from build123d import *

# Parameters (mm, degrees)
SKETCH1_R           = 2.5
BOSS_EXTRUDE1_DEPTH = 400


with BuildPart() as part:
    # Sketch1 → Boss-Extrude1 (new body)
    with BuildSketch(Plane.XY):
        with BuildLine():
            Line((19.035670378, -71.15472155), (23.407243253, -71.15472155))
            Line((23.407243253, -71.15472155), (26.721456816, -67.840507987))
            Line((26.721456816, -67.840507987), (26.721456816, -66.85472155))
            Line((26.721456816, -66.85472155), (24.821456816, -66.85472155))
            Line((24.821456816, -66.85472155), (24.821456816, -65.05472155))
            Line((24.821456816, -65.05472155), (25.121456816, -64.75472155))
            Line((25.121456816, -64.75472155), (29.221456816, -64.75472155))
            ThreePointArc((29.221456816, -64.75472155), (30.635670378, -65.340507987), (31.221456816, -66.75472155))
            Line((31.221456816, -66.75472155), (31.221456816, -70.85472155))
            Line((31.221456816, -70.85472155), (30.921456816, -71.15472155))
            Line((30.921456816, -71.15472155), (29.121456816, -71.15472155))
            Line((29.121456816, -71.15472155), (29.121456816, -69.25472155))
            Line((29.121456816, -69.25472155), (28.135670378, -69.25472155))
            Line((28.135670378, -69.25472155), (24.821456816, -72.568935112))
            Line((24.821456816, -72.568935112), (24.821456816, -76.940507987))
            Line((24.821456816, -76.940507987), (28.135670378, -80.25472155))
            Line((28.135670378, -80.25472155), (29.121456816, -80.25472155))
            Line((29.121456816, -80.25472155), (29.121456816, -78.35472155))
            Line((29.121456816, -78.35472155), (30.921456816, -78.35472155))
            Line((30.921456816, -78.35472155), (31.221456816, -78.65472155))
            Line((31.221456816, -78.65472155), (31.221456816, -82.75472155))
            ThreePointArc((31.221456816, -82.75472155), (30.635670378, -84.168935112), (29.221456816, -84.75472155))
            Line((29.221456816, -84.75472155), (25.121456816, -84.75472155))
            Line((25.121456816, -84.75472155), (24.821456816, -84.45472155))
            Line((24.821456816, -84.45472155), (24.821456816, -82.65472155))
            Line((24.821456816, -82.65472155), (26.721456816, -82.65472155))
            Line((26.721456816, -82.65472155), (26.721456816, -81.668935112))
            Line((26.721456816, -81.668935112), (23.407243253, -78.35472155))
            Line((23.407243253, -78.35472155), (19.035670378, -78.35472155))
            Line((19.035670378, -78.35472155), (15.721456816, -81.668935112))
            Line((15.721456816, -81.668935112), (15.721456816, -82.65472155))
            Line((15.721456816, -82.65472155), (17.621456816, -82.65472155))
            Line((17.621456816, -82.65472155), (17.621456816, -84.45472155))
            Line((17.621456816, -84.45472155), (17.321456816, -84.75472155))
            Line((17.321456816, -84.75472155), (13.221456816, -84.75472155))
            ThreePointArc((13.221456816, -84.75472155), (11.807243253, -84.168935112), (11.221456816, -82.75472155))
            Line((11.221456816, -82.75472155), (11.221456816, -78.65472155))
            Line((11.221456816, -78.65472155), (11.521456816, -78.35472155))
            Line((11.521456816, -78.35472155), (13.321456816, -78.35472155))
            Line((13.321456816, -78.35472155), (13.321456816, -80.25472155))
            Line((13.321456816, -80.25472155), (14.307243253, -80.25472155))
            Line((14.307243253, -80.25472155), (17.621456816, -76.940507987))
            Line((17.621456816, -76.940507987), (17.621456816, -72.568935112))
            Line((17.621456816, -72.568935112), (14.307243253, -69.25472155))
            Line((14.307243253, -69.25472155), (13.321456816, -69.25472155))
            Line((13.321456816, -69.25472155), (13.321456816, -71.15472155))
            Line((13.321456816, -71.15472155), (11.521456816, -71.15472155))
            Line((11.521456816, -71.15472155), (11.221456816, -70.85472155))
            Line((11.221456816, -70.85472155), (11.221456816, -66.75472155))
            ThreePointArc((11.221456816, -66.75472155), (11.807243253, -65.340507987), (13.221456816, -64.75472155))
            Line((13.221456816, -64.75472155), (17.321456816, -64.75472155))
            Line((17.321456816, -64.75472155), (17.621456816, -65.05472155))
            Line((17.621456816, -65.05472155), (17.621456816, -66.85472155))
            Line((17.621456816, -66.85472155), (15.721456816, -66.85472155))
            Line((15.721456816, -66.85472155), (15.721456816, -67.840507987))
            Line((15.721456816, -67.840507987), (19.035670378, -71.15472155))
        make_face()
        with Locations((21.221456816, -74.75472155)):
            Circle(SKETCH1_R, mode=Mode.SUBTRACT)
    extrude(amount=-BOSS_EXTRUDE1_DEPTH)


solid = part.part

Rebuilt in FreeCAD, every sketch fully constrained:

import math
import FreeCAD as App
import Part
import Sketcher
from FreeCAD import Vector

doc = App.newDocument("Part")
params = doc.addObject("Spreadsheet::Sheet", "Params")
for row, (alias, value) in enumerate([
    ("sketch1_diameter", "5 mm"),
    ("sketch1_radius", "2 mm"),
    ("sketch1_width", "1.9 mm"),
    ("sketch1_width2", "4.1 mm"),
    ("sketch1_width3", "1.8 mm"),
    ("pad1_length", "400 mm"),
], start=1):
    params.set(f"A{row}", alias)
    params.set(f"B{row}", "=" + value)
    params.setAlias(f"B{row}", alias)

body = doc.addObject("PartDesign::Body", "Body")

# Sketch on XY plane
sketch1 = body.newObject("Sketcher::SketchObject", "Sketch")
sketch1.AttachmentSupport = (doc.getObject("XY_Plane"), [""])
sketch1.MapMode = "FlatFace"
sketch1.addGeometry(Part.LineSegment(Vector(23.41, -71.15, 0), Vector(19.04, -71.15, 0)), False)
sketch1.addGeometry(Part.LineSegment(Vector(19.04, -71.15, 0), Vector(15.72, -67.84, 0)), False)
sketch1.addGeometry(Part.LineSegment(Vector(15.72, -67.84, 0), Vector(15.72, -66.85, 0)), False)
sketch1.addGeometry(Part.LineSegment(Vector(15.72, -66.85, 0), Vector(17.62, -66.85, 0)), False)
sketch1.addGeometry(Part.LineSegment(Vector(17.62, -66.85, 0), Vector(17.62, -65.05, 0)), False)
sketch1.addGeometry(Part.LineSegment(Vector(17.62, -65.05, 0), Vector(17.32, -64.75, 0)), False)
sketch1.addGeometry(Part.LineSegment(Vector(17.32, -64.75, 0), Vector(13.22, -64.75, 0)), False)
sketch1.addGeometry(Part.ArcOfCircle(Part.Circle(Vector(13.22, -66.75, 0), Vector(0, 0, 1), 2), math.radians(90), math.radians(180)), False)
sketch1.addGeometry(Part.LineSegment(Vector(11.22, -66.75, 0), Vector(11.22, -70.85, 0)), False)
sketch1.addGeometry(Part.LineSegment(Vector(11.22, -70.85, 0), Vector(11.52, -71.15, 0)), False)
sketch1.addGeometry(Part.LineSegment(Vector(11.52, -71.15, 0), Vector(13.32, -71.15, 0)), False)
sketch1.addGeometry(Part.LineSegment(Vector(13.32, -71.15, 0), Vector(13.32, -69.25, 0)), False)
sketch1.addGeometry(Part.LineSegment(Vector(13.32, -69.25, 0), Vector(14.31, -69.25, 0)), False)
sketch1.addGeometry(Part.LineSegment(Vector(14.31, -69.25, 0), Vector(17.62, -72.57, 0)), False)
sketch1.addGeometry(Part.LineSegment(Vector(17.62, -72.57, 0), Vector(17.62, -76.94, 0)), False)
sketch1.addGeometry(Part.LineSegment(Vector(17.62, -76.94, 0), Vector(14.31, -80.25, 0)), False)
sketch1.addGeometry(Part.LineSegment(Vector(14.31, -80.25, 0), Vector(13.32, -80.25, 0)), False)
sketch1.addGeometry(Part.LineSegment(Vector(13.32, -80.25, 0), Vector(13.32, -78.35, 0)), False)
sketch1.addGeometry(Part.LineSegment(Vector(13.32, -78.35, 0), Vector(11.52, -78.35, 0)), False)
sketch1.addGeometry(Part.LineSegment(Vector(11.52, -78.35, 0), Vector(11.22, -78.65, 0)), False)
sketch1.addGeometry(Part.LineSegment(Vector(11.22, -78.65, 0), Vector(11.22, -82.75, 0)), False)
sketch1.addGeometry(Part.ArcOfCircle(Part.Circle(Vector(13.22, -82.75, 0), Vector(0, 0, 1), 2), math.radians(180), math.radians(270)), False)
sketch1.addGeometry(Part.LineSegment(Vector(13.22, -84.75, 0), Vector(17.32, -84.75, 0)), False)
sketch1.addGeometry(Part.LineSegment(Vector(17.32, -84.75, 0), Vector(17.62, -84.45, 0)), False)
sketch1.addGeometry(Part.LineSegment(Vector(17.62, -84.45, 0), Vector(17.62, -82.65, 0)), False)
sketch1.addGeometry(Part.LineSegment(Vector(17.62, -82.65, 0), Vector(15.72, -82.65, 0)), False)
sketch1.addGeometry(Part.LineSegment(Vector(15.72, -82.65, 0), Vector(15.72, -81.67, 0)), False)
sketch1.addGeometry(Part.LineSegment(Vector(15.72, -81.67, 0), Vector(19.04, -78.35, 0)), False)
sketch1.addGeometry(Part.LineSegment(Vector(19.04, -78.35, 0), Vector(23.41, -78.35, 0)), False)
sketch1.addGeometry(Part.LineSegment(Vector(23.41, -78.35, 0), Vector(26.72, -81.67, 0)), False)
sketch1.addGeometry(Part.LineSegment(Vector(26.72, -81.67, 0), Vector(26.72, -82.65, 0)), False)
sketch1.addGeometry(Part.LineSegment(Vector(26.72, -82.65, 0), Vector(24.82, -82.65, 0)), False)
sketch1.addGeometry(Part.LineSegment(Vector(24.82, -82.65, 0), Vector(24.82, -84.45, 0)), False)
sketch1.addGeometry(Part.LineSegment(Vector(24.82, -84.45, 0), Vector(25.12, -84.75, 0)), False)
sketch1.addGeometry(Part.LineSegment(Vector(25.12, -84.75, 0), Vector(29.22, -84.75, 0)), False)
sketch1.addGeometry(Part.ArcOfCircle(Part.Circle(Vector(29.22, -82.75, 0), Vector(0, 0, 1), 2), math.radians(-90), math.radians(0)), False)
sketch1.addGeometry(Part.LineSegment(Vector(31.22, -82.75, 0), Vector(31.22, -78.65, 0)), False)
sketch1.addGeometry(Part.LineSegment(Vector(31.22, -78.65, 0), Vector(30.92, -78.35, 0)), False)
sketch1.addGeometry(Part.LineSegment(Vector(30.92, -78.35, 0), Vector(29.12, -78.35, 0)), False)
sketch1.addGeometry(Part.LineSegment(Vector(29.12, -78.35, 0), Vector(29.12, -80.25, 0)), False)
sketch1.addGeometry(Part.LineSegment(Vector(29.12, -80.25, 0), Vector(28.14, -80.25, 0)), False)
sketch1.addGeometry(Part.LineSegment(Vector(28.14, -80.25, 0), Vector(24.82, -76.94, 0)), False)
sketch1.addGeometry(Part.LineSegment(Vector(24.82, -76.94, 0), Vector(24.82, -72.57, 0)), False)
sketch1.addGeometry(Part.LineSegment(Vector(24.82, -72.57, 0), Vector(28.14, -69.25, 0)), False)
sketch1.addGeometry(Part.LineSegment(Vector(28.14, -69.25, 0), Vector(29.12, -69.25, 0)), False)
sketch1.addGeometry(Part.LineSegment(Vector(29.12, -69.25, 0), Vector(29.12, -71.15, 0)), False)
sketch1.addGeometry(Part.LineSegment(Vector(29.12, -71.15, 0), Vector(30.92, -71.15, 0)), False)
sketch1.addGeometry(Part.LineSegment(Vector(30.92, -71.15, 0), Vector(31.22, -70.85, 0)), False)
sketch1.addGeometry(Part.LineSegment(Vector(31.22, -70.85, 0), Vector(31.22, -66.75, 0)), False)
sketch1.addGeometry(Part.ArcOfCircle(Part.Circle(Vector(29.22, -66.75, 0), Vector(0, 0, 1), 2), math.radians(0), math.radians(90)), False)
sketch1.addGeometry(Part.LineSegment(Vector(29.22, -64.75, 0), Vector(25.12, -64.75, 0)), False)
sketch1.addGeometry(Part.LineSegment(Vector(25.12, -64.75, 0), Vector(24.82, -65.05, 0)), False)
sketch1.addGeometry(Part.LineSegment(Vector(24.82, -65.05, 0), Vector(24.82, -66.85, 0)), False)
sketch1.addGeometry(Part.LineSegment(Vector(24.82, -66.85, 0), Vector(26.72, -66.85, 0)), False)
sketch1.addGeometry(Part.LineSegment(Vector(26.72, -66.85, 0), Vector(26.72, -67.84, 0)), False)
sketch1.addGeometry(Part.LineSegment(Vector(26.72, -67.84, 0), Vector(23.41, -71.15, 0)), False)
sketch1.addGeometry(Part.Circle(Vector(21.22, -74.75, 0), Vector(0, 0, 1), 2.5), False)
sketch1.addConstraint(Sketcher.Constraint("Coincident", 0, 2, 1, 1))
sketch1.addConstraint(Sketcher.Constraint("Coincident", 1, 2, 2, 1))
sketch1.addConstraint(Sketcher.Constraint("Coincident", 2, 2, 3, 1))
sketch1.addConstraint(Sketcher.Constraint("Coincident", 3, 2, 4, 1))
sketch1.addConstraint(Sketcher.Constraint("Coincident", 4, 2, 5, 1))
sketch1.addConstraint(Sketcher.Constraint("Coincident", 5, 2, 6, 1))
sketch1.addConstraint(Sketcher.Constraint("Tangent", 6, 2, 7, 1))
sketch1.addConstraint(Sketcher.Constraint("Tangent", 7, 2, 8, 1))
sketch1.addConstraint(Sketcher.Constraint("Coincident", 8, 2, 9, 1))
sketch1.addConstraint(Sketcher.Constraint("Coincident", 9, 2, 10, 1))
sketch1.addConstraint(Sketcher.Constraint("Coincident", 10, 2, 11, 1))
sketch1.addConstraint(Sketcher.Constraint("Coincident", 11, 2, 12, 1))
sketch1.addConstraint(Sketcher.Constraint("Coincident", 12, 2, 13, 1))
sketch1.addConstraint(Sketcher.Constraint("Coincident", 13, 2, 14, 1))
sketch1.addConstraint(Sketcher.Constraint("Coincident", 14, 2, 15, 1))
sketch1.addConstraint(Sketcher.Constraint("Coincident", 15, 2, 16, 1))
sketch1.addConstraint(Sketcher.Constraint("Coincident", 16, 2, 17, 1))
sketch1.addConstraint(Sketcher.Constraint("Coincident", 17, 2, 18, 1))
sketch1.addConstraint(Sketcher.Constraint("Coincident", 18, 2, 19, 1))
sketch1.addConstraint(Sketcher.Constraint("Coincident", 19, 2, 20, 1))
sketch1.addConstraint(Sketcher.Constraint("Tangent", 20, 2, 21, 1))
sketch1.addConstraint(Sketcher.Constraint("Tangent", 21, 2, 22, 1))
sketch1.addConstraint(Sketcher.Constraint("Coincident", 22, 2, 23, 1))
sketch1.addConstraint(Sketcher.Constraint("Coincident", 23, 2, 24, 1))
sketch1.addConstraint(Sketcher.Constraint("Coincident", 24, 2, 25, 1))
sketch1.addConstraint(Sketcher.Constraint("Coincident", 25, 2, 26, 1))
sketch1.addConstraint(Sketcher.Constraint("Coincident", 26, 2, 27, 1))
sketch1.addConstraint(Sketcher.Constraint("Coincident", 27, 2, 28, 1))
sketch1.addConstraint(Sketcher.Constraint("Coincident", 28, 2, 29, 1))
sketch1.addConstraint(Sketcher.Constraint("Coincident", 29, 2, 30, 1))
sketch1.addConstraint(Sketcher.Constraint("Coincident", 30, 2, 31, 1))
sketch1.addConstraint(Sketcher.Constraint("Coincident", 31, 2, 32, 1))
sketch1.addConstraint(Sketcher.Constraint("Coincident", 32, 2, 33, 1))
sketch1.addConstraint(Sketcher.Constraint("Coincident", 33, 2, 34, 1))
sketch1.addConstraint(Sketcher.Constraint("Tangent", 34, 2, 35, 1))
sketch1.addConstraint(Sketcher.Constraint("Tangent", 35, 2, 36, 1))
sketch1.addConstraint(Sketcher.Constraint("Coincident", 36, 2, 37, 1))
sketch1.addConstraint(Sketcher.Constraint("Coincident", 37, 2, 38, 1))
sketch1.addConstraint(Sketcher.Constraint("Coincident", 38, 2, 39, 1))
sketch1.addConstraint(Sketcher.Constraint("Coincident", 39, 2, 40, 1))
sketch1.addConstraint(Sketcher.Constraint("Coincident", 40, 2, 41, 1))
sketch1.addConstraint(Sketcher.Constraint("Coincident", 41, 2, 42, 1))
sketch1.addConstraint(Sketcher.Constraint("Coincident", 42, 2, 43, 1))
sketch1.addConstraint(Sketcher.Constraint("Coincident", 43, 2, 44, 1))
sketch1.addConstraint(Sketcher.Constraint("Coincident", 44, 2, 45, 1))
sketch1.addConstraint(Sketcher.Constraint("Coincident", 45, 2, 46, 1))
sketch1.addConstraint(Sketcher.Constraint("Coincident", 46, 2, 47, 1))
sketch1.addConstraint(Sketcher.Constraint("Coincident", 47, 2, 48, 1))
sketch1.addConstraint(Sketcher.Constraint("Tangent", 48, 2, 49, 1))
sketch1.addConstraint(Sketcher.Constraint("Tangent", 49, 2, 50, 1))
sketch1.addConstraint(Sketcher.Constraint("Coincident", 50, 2, 51, 1))
sketch1.addConstraint(Sketcher.Constraint("Coincident", 51, 2, 52, 1))
sketch1.addConstraint(Sketcher.Constraint("Coincident", 52, 2, 53, 1))
sketch1.addConstraint(Sketcher.Constraint("Coincident", 53, 2, 54, 1))
sketch1.addConstraint(Sketcher.Constraint("Coincident", 54, 2, 55, 1))
sketch1.addConstraint(Sketcher.Constraint("Coincident", 55, 2, 0, 1))
sketch1.addConstraint(Sketcher.Constraint("Horizontal", 0))
sketch1.addConstraint(Sketcher.Constraint("Vertical", 2))
sketch1.addConstraint(Sketcher.Constraint("Horizontal", 3))
sketch1.addConstraint(Sketcher.Constraint("Vertical", 4))
sketch1.addConstraint(Sketcher.Constraint("Horizontal", 6))
sketch1.addConstraint(Sketcher.Constraint("Vertical", 8))
sketch1.addConstraint(Sketcher.Constraint("Horizontal", 10))
sketch1.addConstraint(Sketcher.Constraint("Vertical", 11))
sketch1.addConstraint(Sketcher.Constraint("Horizontal", 12))
sketch1.addConstraint(Sketcher.Constraint("Vertical", 14))
sketch1.addConstraint(Sketcher.Constraint("Horizontal", 16))
sketch1.addConstraint(Sketcher.Constraint("Vertical", 17))
sketch1.addConstraint(Sketcher.Constraint("Horizontal", 18))
sketch1.addConstraint(Sketcher.Constraint("Vertical", 20))
sketch1.addConstraint(Sketcher.Constraint("Horizontal", 22))
sketch1.addConstraint(Sketcher.Constraint("Vertical", 24))
sketch1.addConstraint(Sketcher.Constraint("Horizontal", 25))
sketch1.addConstraint(Sketcher.Constraint("Vertical", 26))
sketch1.addConstraint(Sketcher.Constraint("Horizontal", 28))
sketch1.addConstraint(Sketcher.Constraint("Vertical", 30))
sketch1.addConstraint(Sketcher.Constraint("Horizontal", 31))
sketch1.addConstraint(Sketcher.Constraint("Vertical", 32))
sketch1.addConstraint(Sketcher.Constraint("Horizontal", 34))
sketch1.addConstraint(Sketcher.Constraint("Vertical", 36))
sketch1.addConstraint(Sketcher.Constraint("Horizontal", 38))
sketch1.addConstraint(Sketcher.Constraint("Vertical", 39))
sketch1.addConstraint(Sketcher.Constraint("Horizontal", 40))
sketch1.addConstraint(Sketcher.Constraint("Vertical", 42))
sketch1.addConstraint(Sketcher.Constraint("Horizontal", 44))
sketch1.addConstraint(Sketcher.Constraint("Vertical", 45))
sketch1.addConstraint(Sketcher.Constraint("Horizontal", 46))
sketch1.addConstraint(Sketcher.Constraint("Vertical", 48))
sketch1.addConstraint(Sketcher.Constraint("Horizontal", 50))
sketch1.addConstraint(Sketcher.Constraint("Vertical", 52))
sketch1.addConstraint(Sketcher.Constraint("Horizontal", 53))
sketch1.addConstraint(Sketcher.Constraint("Vertical", 54))
sketch1.addConstraint(Sketcher.Constraint("Equal", 7, 21))
sketch1.addConstraint(Sketcher.Constraint("Equal", 21, 35))
sketch1.addConstraint(Sketcher.Constraint("Equal", 35, 49))
sketch1.addConstraint(Sketcher.Constraint("Parallel", 1, 5))
sketch1.addConstraint(Sketcher.Constraint("Parallel", 5, 9))
sketch1.addConstraint(Sketcher.Constraint("Parallel", 9, 13))
sketch1.addConstraint(Sketcher.Constraint("Perpendicular", 13, 15))
sketch1.addConstraint(Sketcher.Constraint("Parallel", 15, 19))
sketch1.addConstraint(Sketcher.Constraint("Parallel", 19, 23))
sketch1.addConstraint(Sketcher.Constraint("Parallel", 23, 27))
sketch1.addConstraint(Sketcher.Constraint("Perpendicular", 27, 29))
sketch1.addConstraint(Sketcher.Constraint("Parallel", 29, 33))
sketch1.addConstraint(Sketcher.Constraint("Parallel", 33, 37))
sketch1.addConstraint(Sketcher.Constraint("Parallel", 37, 41))
sketch1.addConstraint(Sketcher.Constraint("Perpendicular", 41, 43))
sketch1.addConstraint(Sketcher.Constraint("Parallel", 43, 47))
sketch1.addConstraint(Sketcher.Constraint("Parallel", 47, 51))
sketch1.addConstraint(Sketcher.Constraint("Parallel", 51, 55))
sketch1.addConstraint(Sketcher.Constraint("Horizontal", 21, 3, 35, 3))
sketch1.addConstraint(Sketcher.Constraint("Horizontal", 7, 3, 49, 3))
sketch1.addConstraint(Sketcher.Constraint("Horizontal", 0, 2, 9, 2))
sketch1.addConstraint(Sketcher.Constraint("Horizontal", 18, 2, 27, 2))
sketch1.addConstraint(Sketcher.Constraint("Horizontal", 26, 2, 29, 2))
sketch1.addConstraint(Sketcher.Constraint("Horizontal", 25, 2, 30, 2))
sketch1.addConstraint(Sketcher.Constraint("Horizontal", 23, 2, 32, 2))
sketch1.addConstraint(Sketcher.Constraint("Horizontal", 19, 2, 36, 2))
sketch1.addConstraint(Sketcher.Constraint("Horizontal", 28, 2, 37, 2))
sketch1.addConstraint(Sketcher.Constraint("Horizontal", 16, 2, 39, 2))
sketch1.addConstraint(Sketcher.Constraint("Horizontal", 14, 2, 41, 2))
sketch1.addConstraint(Sketcher.Constraint("Horizontal", 13, 2, 42, 2))
sketch1.addConstraint(Sketcher.Constraint("Horizontal", 12, 2, 43, 2))
sketch1.addConstraint(Sketcher.Constraint("Horizontal", 10, 2, 45, 2))
sketch1.addConstraint(Sketcher.Constraint("Horizontal", 8, 2, 47, 2))
sketch1.addConstraint(Sketcher.Constraint("Horizontal", 4, 2, 51, 2))
sketch1.addConstraint(Sketcher.Constraint("Horizontal", 3, 2, 52, 2))
sketch1.addConstraint(Sketcher.Constraint("Horizontal", 1, 2, 54, 2))
sketch1.addConstraint(Sketcher.Constraint("Vertical", 7, 3, 21, 3))
sketch1.addConstraint(Sketcher.Constraint("Vertical", 35, 3, 49, 3))
sketch1.addConstraint(Sketcher.Constraint("Vertical", 4, 2, 13, 2))
sketch1.addConstraint(Sketcher.Constraint("Vertical", 12, 2, 15, 2))
sketch1.addConstraint(Sketcher.Constraint("Vertical", 11, 2, 16, 2))
sketch1.addConstraint(Sketcher.Constraint("Vertical", 9, 2, 18, 2))
sketch1.addConstraint(Sketcher.Constraint("Vertical", 5, 2, 22, 2))
sketch1.addConstraint(Sketcher.Constraint("Vertical", 14, 2, 23, 2))
sketch1.addConstraint(Sketcher.Constraint("Vertical", 2, 2, 25, 2))
sketch1.addConstraint(Sketcher.Constraint("Vertical", 0, 2, 27, 2))
sketch1.addConstraint(Sketcher.Constraint("Vertical", 32, 2, 41, 2))
sketch1.addConstraint(Sketcher.Constraint("Vertical", 40, 2, 43, 2))
sketch1.addConstraint(Sketcher.Constraint("Vertical", 39, 2, 44, 2))
sketch1.addConstraint(Sketcher.Constraint("Vertical", 33, 2, 50, 2))
sketch1.addConstraint(Sketcher.Constraint("Vertical", 30, 2, 53, 2))
sketch1.addConstraint(Sketcher.Constraint("Equal", 25, 31))
sketch1.addConstraint(Sketcher.Constraint("Equal", 22, 34))
sketch1.addConstraint(Sketcher.Constraint("Equal", 18, 38))
sketch1.addConstraint(Sketcher.Constraint("Equal", 44, 2))
sketch1.addConstraint(Sketcher.Constraint("Equal", 46, 4))
sketch1.addConstraint(Sketcher.Constraint("Equal", 50, 8))
sketch1.addConstraint(Sketcher.Constraint("Equal", 53, 11))
sketch1.addConstraint(Sketcher.Constraint("Equal", 28, 14))
sketch1.addConstraint(Sketcher.Constraint("Equal", 11, 17))
sketch1.addConstraint(Sketcher.Constraint("Equal", 8, 20))
sketch1.addConstraint(Sketcher.Constraint("Equal", 4, 24))
sketch1.addConstraint(Sketcher.Constraint("Equal", 5, 9))
sketch1.addConstraint(Sketcher.Constraint("Diameter", 56, 5.0))
sketch1.addConstraint(Sketcher.Constraint("Radius", 7, 2.0))
sketch1.addConstraint(Sketcher.Constraint("DistanceX", 3, 1, 3, 2, 1.9))
sketch1.addConstraint(Sketcher.Constraint("DistanceX", 6, 2, 6, 1, 4.1))
sketch1.addConstraint(Sketcher.Constraint("DistanceX", 10, 1, 10, 2, 1.8))
sketch1.addConstraint(Sketcher.Constraint("DistanceX", 0, 2, 0, 1, 4.371573))
sketch1.addConstraint(Sketcher.Constraint("DistanceX", 12, 1, 12, 2, 0.985786))
sketch1.addConstraint(Sketcher.Constraint("DistanceY", 7, 3, -1, 1, 66.754722))
sketch1.addConstraint(Sketcher.Constraint("DistanceY", 21, 3, -1, 1, 82.754722))
sketch1.addConstraint(Sketcher.Constraint("DistanceY", 56, 3, -1, 1, 74.754722))
sketch1.addConstraint(Sketcher.Constraint("DistanceX", -1, 1, 0, 2, 19.03567))
sketch1.addConstraint(Sketcher.Constraint("DistanceX", -1, 1, 56, 3, 21.221457))
sketch1.setExpression("Constraints[155]", "Params.sketch1_diameter")
sketch1.setExpression("Constraints[156]", "Params.sketch1_radius")
sketch1.setExpression("Constraints[157]", "Params.sketch1_width")
sketch1.setExpression("Constraints[158]", "Params.sketch1_width2")
sketch1.setExpression("Constraints[159]", "Params.sketch1_width3")
pad1 = body.newObject("PartDesign::Pad", "Pad")
pad1.Profile = sketch1
pad1.setExpression("Length", "Params.pad1_length")
pad1.Reversed = True

doc.recompute()
